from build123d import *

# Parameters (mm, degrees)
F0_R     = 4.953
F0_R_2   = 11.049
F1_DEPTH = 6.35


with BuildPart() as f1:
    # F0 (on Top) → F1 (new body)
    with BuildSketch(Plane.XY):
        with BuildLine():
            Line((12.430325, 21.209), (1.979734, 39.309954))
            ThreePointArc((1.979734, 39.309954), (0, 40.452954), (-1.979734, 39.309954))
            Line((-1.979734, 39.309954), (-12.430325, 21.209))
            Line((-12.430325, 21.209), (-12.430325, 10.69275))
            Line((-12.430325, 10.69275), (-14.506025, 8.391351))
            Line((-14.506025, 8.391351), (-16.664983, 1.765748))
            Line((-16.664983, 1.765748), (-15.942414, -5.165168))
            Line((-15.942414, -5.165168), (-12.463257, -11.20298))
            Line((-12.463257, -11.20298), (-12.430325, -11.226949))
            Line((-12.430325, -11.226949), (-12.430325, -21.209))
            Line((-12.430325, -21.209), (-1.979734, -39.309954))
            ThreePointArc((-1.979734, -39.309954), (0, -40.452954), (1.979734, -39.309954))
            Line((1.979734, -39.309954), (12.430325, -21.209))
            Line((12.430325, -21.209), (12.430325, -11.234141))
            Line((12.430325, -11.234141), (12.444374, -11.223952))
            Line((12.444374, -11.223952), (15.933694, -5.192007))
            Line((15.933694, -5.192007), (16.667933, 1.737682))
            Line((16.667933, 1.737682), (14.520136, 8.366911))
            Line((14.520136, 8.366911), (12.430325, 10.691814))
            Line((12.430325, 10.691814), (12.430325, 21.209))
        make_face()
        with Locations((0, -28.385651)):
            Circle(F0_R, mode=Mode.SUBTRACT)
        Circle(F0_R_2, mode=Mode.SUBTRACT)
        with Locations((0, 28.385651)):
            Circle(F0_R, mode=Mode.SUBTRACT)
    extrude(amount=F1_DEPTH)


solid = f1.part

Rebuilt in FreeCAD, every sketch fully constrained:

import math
import FreeCAD as App
import Part
import Sketcher
from FreeCAD import Vector
Q = App.Units.Quantity

doc = App.newDocument("Part")
body = doc.addObject("PartDesign::Body", "Body")

# Sketch on XY plane
sketch1 = body.newObject("Sketcher::SketchObject", "Sketch")
sketch1.AttachmentSupport = (doc.getObject("XY_Plane"), [""])
sketch1.MapMode = "FlatFace"
sketch1.addGeometry(Part.LineSegment(Vector(12.430325, 21.209, 0), Vector(1.979734, 39.309954, 0)), False)
sketch1.addGeometry(Part.ArcOfCircle(Part.Circle(Vector(0, 38.166954, 0), Vector(0, 0, 1), 2.286), math.radians(29.999998), math.radians(150.000002)), False)
sketch1.addGeometry(Part.LineSegment(Vector(-1.979734, 39.309954, 0), Vector(-12.430325, 21.209, 0)), False)
sketch1.addGeometry(Part.LineSegment(Vector(-12.430325, 21.209, 0), Vector(-12.430325, 10.69275, 0)), False)
sketch1.addGeometry(Part.LineSegment(Vector(-12.430325, 10.69275, 0), Vector(-14.506025, 8.391351, 0)), False)
sketch1.addGeometry(Part.LineSegment(Vector(-14.506025, 8.391351, 0), Vector(-16.664983, 1.765748, 0)), False)
sketch1.addGeometry(Part.LineSegment(Vector(-16.664983, 1.765748, 0), Vector(-15.942414, -5.165168, 0)), False)
sketch1.addGeometry(Part.LineSegment(Vector(-15.942414, -5.165168, 0), Vector(-12.463257, -11.20298, 0)), False)
sketch1.addGeometry(Part.LineSegment(Vector(-12.463257, -11.20298, 0), Vector(-12.430325, -11.226949, 0)), False)
sketch1.addGeometry(Part.LineSegment(Vector(-12.430325, -11.226949, 0), Vector(-12.430325, -21.209, 0)), False)
sketch1.addGeometry(Part.LineSegment(Vector(-12.430325, -21.209, 0), Vector(-1.979734, -39.309954, 0)), False)
sketch1.addGeometry(Part.ArcOfCircle(Part.Circle(Vector(0, -38.166954, 0), Vector(0, 0, 1), 2.286), math.radians(-150.000002), math.radians(-29.999998)), False)
sketch1.addGeometry(Part.LineSegment(Vector(1.979734, -39.309954, 0), Vector(12.430325, -21.209, 0)), False)
sketch1.addGeometry(Part.LineSegment(Vector(12.430325, -21.209, 0), Vector(12.430325, -11.234141, 0)), False)
sketch1.addGeometry(Part.LineSegment(Vector(12.430325, -11.234141, 0), Vector(12.444374, -11.223952, 0)), False)
sketch1.addGeometry(Part.LineSegment(Vector(12.444374, -11.223952, 0), Vector(15.933694, -5.192007, 0)), False)
sketch1.addGeometry(Part.LineSegment(Vector(15.933694, -5.192007, 0), Vector(16.667933, 1.737682, 0)), False)
sketch1.addGeometry(Part.LineSegment(Vector(16.667933, 1.737682, 0), Vector(14.520136, 8.366911, 0)), False)
sketch1.addGeometry(Part.LineSegment(Vector(14.520136, 8.366911, 0), Vector(12.430325, 10.691814, 0)), False)
sketch1.addGeometry(Part.LineSegment(Vector(12.430325, 10.691814, 0), Vector(12.430325, 21.209, 0)), False)
sketch1.addGeometry(Part.Circle(Vector(0, -28.385651, 0), Vector(0, 0, 1), 4.953), False)
sketch1.addGeometry(Part.Circle(Vector(0, 0, 0), Vector(0, 0, 1), 11.049), False)
sketch1.addGeometry(Part.Circle(Vector(0, 28.385651, 0), Vector(0, 0, 1), 4.953), False)
sketch1.addConstraint(Sketcher.Constraint("Tangent", 0, 2, 1, 1))
sketch1.addConstraint(Sketcher.Constraint("Tangent", 1, 2, 2, 1))
sketch1.addConstraint(Sketcher.Constraint("Coincident", 2, 2, 3, 1))
sketch1.addConstraint(Sketcher.Constraint("Coincident", 3, 2, 4, 1))
sketch1.addConstraint(Sketcher.Constraint("Coincident", 4, 2, 5, 1))
sketch1.addConstraint(Sketcher.Constraint("Coincident", 5, 2, 6, 1))
sketch1.addConstraint(Sketcher.Constraint("Coincident", 6, 2, 7, 1))
sketch1.addConstraint(Sketcher.Constraint("Coincident", 7, 2, 8, 1))
sketch1.addConstraint(Sketcher.Constraint("Coincident", 8, 2, 9, 1))
sketch1.addConstraint(Sketcher.Constraint("Coincident", 9, 2, 10, 1))
sketch1.addConstraint(Sketcher.Constraint("Tangent", 10, 2, 11, 1))
sketch1.addConstraint(Sketcher.Constraint("Tangent", 11, 2, 12, 1))
sketch1.addConstraint(Sketcher.Constraint("Coincident", 12, 2, 13, 1))
sketch1.addConstraint(Sketcher.Constraint("Coincident", 13, 2, 14, 1))
sketch1.addConstraint(Sketcher.Constraint("Coincident", 14, 2, 15, 1))
sketch1.addConstraint(Sketcher.Constraint("Coincident", 15, 2, 16, 1))
sketch1.addConstraint(Sketcher.Constraint("Coincident", 16, 2, 17, 1))
sketch1.addConstraint(Sketcher.Constraint("Coincident", 17, 2, 18, 1))
sketch1.addConstraint(Sketcher.Constraint("Coincident", 18, 2, 19, 1))
sketch1.addConstraint(Sketcher.Constraint("Coincident", 19, 2, 0, 1))
sketch1.addConstraint(Sketcher.Constraint("Vertical", 3))
sketch1.addConstraint(Sketcher.Constraint("Vertical", 9))
sketch1.addConstraint(Sketcher.Constraint("Vertical", 13))
sketch1.addConstraint(Sketcher.Constraint("Vertical", 19))
sketch1.addConstraint(Sketcher.Constraint("Coincident", 21, 3, -1, 1))
sketch1.addConstraint(Sketcher.Constraint("Equal", 1, 11))
sketch1.addConstraint(Sketcher.Constraint("Equal", 20, 22))
sketch1.addConstraint(Sketcher.Constraint("Symmetric", 1, 3, 11, 3, -1, 1))
sketch1.addConstraint(Sketcher.Constraint("Symmetric", 20, 3, 22, 3, -1, 1))
sketch1.addConstraint(Sketcher.Constraint("Symmetric", 2, 2, 12, 2, -1, 1))
sketch1.addConstraint(Sketcher.Constraint("Symmetric", 9, 2, 19, 2, -1, 1))
sketch1.addConstraint(Sketcher.Constraint("Symmetric", 0, 2, 1, 2, -2))
sketch1.addConstraint(Sketcher.Constraint("PointOnObject", 20, 3, -2))
sketch1.addConstraint(Sketcher.Constraint("Horizontal", 9, 2, 12, 2))
sketch1.addConstraint(Sketcher.Constraint("Equal", 5, 6))
sketch1.addConstraint(Sketcher.Constraint("Equal", 6, 7))
sketch1.addConstraint(Sketcher.Constraint("Equal", 7, 15))
sketch1.addConstraint(Sketcher.Constraint("Equal", 15, 16))
sketch1.addConstraint(Sketcher.Constraint("Equal", 16, 17))
sketch1.addConstraint(Sketcher.Constraint("Diameter", 20, Q("0.39 in")))
sketch1.addConstraint(Sketcher.Constraint("Diameter", 21, Q("0.87 in")))
sketch1.addConstraint(Sketcher.Constraint("Radius", 1, Q("0.09 in")))
sketch1.addConstraint(Sketcher.Constraint("Angle", 0, Q("120.000001 deg")))
sketch1.addConstraint(Sketcher.Constraint("DistanceY", -1, 1, 2, 2, Q("0.835 in")))
sketch1.addConstraint(Sketcher.Constraint("DistanceY", 3, 2, 3, 1, Q("10.51625 mm")))
sketch1.addConstraint(Sketcher.Constraint("DistanceY", 9, 2, 9, 1, Q("9.982051 mm")))
sketch1.addConstraint(Sketcher.Constraint("DistanceY", 13, 1, 13, 2, Q("9.974859 mm")))
sketch1.addConstraint(Sketcher.Constraint("DistanceY", 3, 2, 22, 3, Q("17.692901 mm")))
sketch1.addConstraint(Sketcher.Constraint("DistanceX", 4, 2, 3, 2, Q("2.0757 mm")))
sketch1.addConstraint(Sketcher.Constraint("DistanceY", 4, 2, 3, 2, Q("2.301399 mm")))
sketch1.addConstraint(Sketcher.Constraint("DistanceY", 20, 3, 14, 2, Q("17.161699 mm")))
sketch1.addConstraint(Sketcher.Constraint("DistanceX", 8, 2, 14, 2, Q("24.874699 mm")))
sketch1.addConstraint(Sketcher.Constraint("Distance", 0, Q("20.901181 mm")))
sketch1.addConstraint(Sketcher.Constraint("Distance", 5, Q("6.96848 mm")))
sketch1.addConstraint(Sketcher.Constraint("Distance", 8, Q("0.040731 mm")))
sketch1.addConstraint(Sketcher.Constraint("DistanceY", 19, 1, 19, 2, Q("10.517186 mm")))
sketch1.addConstraint(Sketcher.Constraint("DistanceY", -1, 1, 5, 2, Q("1.765748 mm")))
sketch1.addConstraint(Sketcher.Constraint("DistanceY", 6, 2, -1, 1, Q("5.165168 mm")))
sketch1.addConstraint(Sketcher.Constraint("DistanceY", -1, 1, 17, 2, Q("8.366911 mm")))
sketch1.addConstraint(Sketcher.Constraint("DistanceX", 14, 2, 15, 2, Q("3.48932 mm")))
sketch1.addConstraint(Sketcher.Constraint("DistanceX", 15, 2, 16, 2, Q("0.734239 mm")))
pad1 = body.newObject("PartDesign::Pad", "Pad")
pad1.Profile = sketch1
pad1.Length = Q("0.25 in")

doc.recompute()
